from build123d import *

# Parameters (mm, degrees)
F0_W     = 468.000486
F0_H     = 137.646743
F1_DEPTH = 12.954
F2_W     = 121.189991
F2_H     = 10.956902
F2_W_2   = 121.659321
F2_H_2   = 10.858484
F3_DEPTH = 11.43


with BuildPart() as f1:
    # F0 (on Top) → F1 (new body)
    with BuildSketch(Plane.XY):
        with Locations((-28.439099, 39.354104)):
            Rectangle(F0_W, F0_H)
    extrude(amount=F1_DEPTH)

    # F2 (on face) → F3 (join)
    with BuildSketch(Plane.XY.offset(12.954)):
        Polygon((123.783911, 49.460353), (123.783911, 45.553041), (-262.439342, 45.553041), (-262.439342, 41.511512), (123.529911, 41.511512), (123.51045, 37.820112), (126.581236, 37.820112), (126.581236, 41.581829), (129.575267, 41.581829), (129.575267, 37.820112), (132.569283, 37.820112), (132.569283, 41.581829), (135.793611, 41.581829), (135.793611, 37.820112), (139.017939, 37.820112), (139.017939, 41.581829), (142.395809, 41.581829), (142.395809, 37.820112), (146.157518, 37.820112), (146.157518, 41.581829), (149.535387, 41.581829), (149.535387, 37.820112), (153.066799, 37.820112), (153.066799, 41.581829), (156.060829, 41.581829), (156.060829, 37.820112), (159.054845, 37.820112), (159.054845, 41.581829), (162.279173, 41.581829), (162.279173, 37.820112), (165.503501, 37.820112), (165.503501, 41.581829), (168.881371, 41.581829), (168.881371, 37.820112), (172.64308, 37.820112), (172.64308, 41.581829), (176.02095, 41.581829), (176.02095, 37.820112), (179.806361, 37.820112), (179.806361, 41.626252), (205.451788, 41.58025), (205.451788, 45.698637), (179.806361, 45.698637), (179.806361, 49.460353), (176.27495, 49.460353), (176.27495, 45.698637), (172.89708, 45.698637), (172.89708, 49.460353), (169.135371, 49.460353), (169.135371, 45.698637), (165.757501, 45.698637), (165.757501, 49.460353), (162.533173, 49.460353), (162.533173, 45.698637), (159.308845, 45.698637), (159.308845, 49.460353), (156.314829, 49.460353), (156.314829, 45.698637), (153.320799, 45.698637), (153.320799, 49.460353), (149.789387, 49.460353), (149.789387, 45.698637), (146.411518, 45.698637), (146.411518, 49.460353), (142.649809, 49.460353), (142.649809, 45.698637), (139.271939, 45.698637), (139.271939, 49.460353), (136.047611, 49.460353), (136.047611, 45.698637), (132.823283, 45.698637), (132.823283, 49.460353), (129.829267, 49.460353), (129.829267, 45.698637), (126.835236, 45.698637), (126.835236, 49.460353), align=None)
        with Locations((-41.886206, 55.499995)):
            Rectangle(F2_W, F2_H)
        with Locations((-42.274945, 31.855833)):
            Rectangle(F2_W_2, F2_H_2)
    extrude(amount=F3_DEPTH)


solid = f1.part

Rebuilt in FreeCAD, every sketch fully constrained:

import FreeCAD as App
import Part
import Sketcher

V = App.Vector
Q = App.Units.Quantity


def add_polygon(sketch, points):
    """Adds a closed chain of lines whose ends are joined by coincident constraints."""
    first, n = sketch.GeometryCount, len(points)
    for a, b in zip(points, points[1:] + points[:1]):
        sketch.addGeometry(Part.LineSegment(App.Vector(*a, 0), App.Vector(*b, 0)), False)
    for i in range(n):
        sketch.addConstraint(Sketcher.Constraint("Coincident", first + i, 2, first + (i + 1) % n, 1))

doc = App.newDocument("Part")
body = doc.addObject("PartDesign::Body", "Body")

# Sketch on XY plane
sketch1 = body.newObject("Sketcher::SketchObject", "Sketch")
sketch1.AttachmentSupport = (doc.getObject("XY_Plane"), [""])
sketch1.MapMode = "FlatFace"
add_polygon(sketch1, [(-262, 108), (-262, -29), (206, -29), (206, 108)])  # lines 0-3
sketch1.addConstraint(Sketcher.Constraint("Vertical", 0))
sketch1.addConstraint(Sketcher.Constraint("Horizontal", 1))
sketch1.addConstraint(Sketcher.Constraint("Vertical", 2))
sketch1.addConstraint(Sketcher.Constraint("Horizontal", 3))
sketch1.addConstraint(Sketcher.Constraint("DistanceX", 1, 1, 1, 2, 468.000486))
sketch1.addConstraint(Sketcher.Constraint("DistanceY", 0, 2, 0, 1, 137.646743))
sketch1.addConstraint(Sketcher.Constraint("DistanceX", 0, 2, -1, 1, 262.439342))
sketch1.addConstraint(Sketcher.Constraint("DistanceY", 0, 2, -1, 1, 29.469268))
pad1 = body.newObject("PartDesign::Pad", "Pad")
pad1.Profile = sketch1
pad1.Length = Q("0.51 in")

# Sketch on XY plane
sketch2 = body.newObject("Sketcher::SketchObject", "Sketch001")
sketch2.AttachmentSupport = (doc.getObject("XY_Plane"), [""])
sketch2.MapMode = "FlatFace"
sketch2.AttachmentOffset = App.Placement(V(0, 0, 0.51 * 25.4), App.Rotation())
add_polygon(sketch2, [(123.8, 49.5), (123.8, 45.6), (-262.4, 45.6), (-262.4, 41.5), (123.5, 41.5), (123.5, 37.8), (126.6, 37.8), (126.6, 41.6), (129.6, 41.6), (129.6, 37.8), (132.6, 37.8), (132.6, 41.6), (135.8, 41.6), (135.8, 37.8), (139, 37.8), (139, 41.6), (142.4, 41.6), (142.4, 37.8), (146.2, 37.8), (146.2, 41.6), (149.5, 41.6), (149.5, 37.8), (153.1, 37.8), (153.1, 41.6), (156.1, 41.6), (156.1, 37.8), (159.1, 37.8), (159.1, 41.6), (162.3, 41.6), (162.3, 37.8), (165.5, 37.8), (165.5, 41.6), (168.9, 41.6), (168.9, 37.8), (172.6, 37.8), (172.6, 41.6), (176, 41.6), (176, 37.8), (179.8, 37.8), (179.8, 41.6), (205.5, 41.6), (205.5, 45.7), (179.8, 45.7), (179.8, 49.5), (176.3, 49.5), (176.3, 45.7), (172.9, 45.7), (172.9, 49.5), (169.1, 49.5), (169.1, 45.7), (165.8, 45.7), (165.8, 49.5), (162.5, 49.5), (162.5, 45.7), (159.3, 45.7), (159.3, 49.5), (156.3, 49.5), (156.3, 45.7), (153.3, 45.7), (153.3, 49.5), (149.8, 49.5), (149.8, 45.7), (146.4, 45.7), (146.4, 49.5), (142.6, 49.5), (142.6, 45.7), (139.3, 45.7), (139.3, 49.5), (136, 49.5), (136, 45.7), (132.8, 45.7), (132.8, 49.5), (129.8, 49.5), (129.8, 45.7), (126.8, 45.7), (126.8, 49.5)])  # lines 0-75
add_polygon(sketch2, [(-102.5, 61), (-102.5, 50), (18.7, 50), (18.7, 61)])  # lines 76-79
add_polygon(sketch2, [(-103.1, 37.3), (-103.1, 26.4), (18.6, 26.4), (18.6, 37.3)])  # lines 80-83
sketch2.addConstraint(Sketcher.Constraint("Vertical", 0))
sketch2.addConstraint(Sketcher.Constraint("Horizontal", 1))
sketch2.addConstraint(Sketcher.Constraint("Vertical", 2))
sketch2.addConstraint(Sketcher.Constraint("Horizontal", 3))
sketch2.addConstraint(Sketcher.Constraint("Horizontal", 5))
sketch2.addConstraint(Sketcher.Constraint("Vertical", 6))
sketch2.addConstraint(Sketcher.Constraint("Horizontal", 7))
sketch2.addConstraint(Sketcher.Constraint("Vertical", 8))
sketch2.addConstraint(Sketcher.Constraint("Horizontal", 9))
sketch2.addConstraint(Sketcher.Constraint("Vertical", 10))
sketch2.addConstraint(Sketcher.Constraint("Horizontal", 11))
sketch2.addConstraint(Sketcher.Constraint("Vertical", 12))
sketch2.addConstraint(Sketcher.Constraint("Horizontal", 13))
sketch2.addConstraint(Sketcher.Constraint("Vertical", 14))
sketch2.addConstraint(Sketcher.Constraint("Horizontal", 15))
sketch2.addConstraint(Sketcher.Constraint("Vertical", 16))
sketch2.addConstraint(Sketcher.Constraint("Horizontal", 17))
sketch2.addConstraint(Sketcher.Constraint("Vertical", 18))
sketch2.addConstraint(Sketcher.Constraint("Horizontal", 19))
sketch2.addConstraint(Sketcher.Constraint("Vertical", 20))
sketch2.addConstraint(Sketcher.Constraint("Horizontal", 21))
sketch2.addConstraint(Sketcher.Constraint("Vertical", 22))
sketch2.addConstraint(Sketcher.Constraint("Horizontal", 23))
sketch2.addConstraint(Sketcher.Constraint("Vertical", 24))
sketch2.addConstraint(Sketcher.Constraint("Horizontal", 25))
sketch2.addConstraint(Sketcher.Constraint("Vertical", 26))
sketch2.addConstraint(Sketcher.Constraint("Horizontal", 27))
sketch2.addConstraint(Sketcher.Constraint("Vertical", 28))
sketch2.addConstraint(Sketcher.Constraint("Horizontal", 29))
sketch2.addConstraint(Sketcher.Constraint("Vertical", 30))
sketch2.addConstraint(Sketcher.Constraint("Horizontal", 31))
sketch2.addConstraint(Sketcher.Constraint("Vertical", 32))
sketch2.addConstraint(Sketcher.Constraint("Horizontal", 33))
sketch2.addConstraint(Sketcher.Constraint("Vertical", 34))
sketch2.addConstraint(Sketcher.Constraint("Horizontal", 35))
sketch2.addConstraint(Sketcher.Constraint("Vertical", 36))
sketch2.addConstraint(Sketcher.Constraint("Horizontal", 37))
sketch2.addConstraint(Sketcher.Constraint("Vertical", 38))
sketch2.addConstraint(Sketcher.Constraint("Vertical", 40))
sketch2.addConstraint(Sketcher.Constraint("Horizontal", 41))
sketch2.addConstraint(Sketcher.Constraint("Vertical", 42))
sketch2.addConstraint(Sketcher.Constraint("Horizontal", 43))
sketch2.addConstraint(Sketcher.Constraint("Vertical", 44))
sketch2.addConstraint(Sketcher.Constraint("Horizontal", 45))
sketch2.addConstraint(Sketcher.Constraint("Vertical", 46))
sketch2.addConstraint(Sketcher.Constraint("Horizontal", 47))
sketch2.addConstraint(Sketcher.Constraint("Vertical", 48))
sketch2.addConstraint(Sketcher.Constraint("Horizontal", 49))
sketch2.addConstraint(Sketcher.Constraint("Vertical", 50))
sketch2.addConstraint(Sketcher.Constraint("Horizontal", 51))
sketch2.addConstraint(Sketcher.Constraint("Vertical", 52))
sketch2.addConstraint(Sketcher.Constraint("Horizontal", 53))
sketch2.addConstraint(Sketcher.Constraint("Vertical", 54))
sketch2.addConstraint(Sketcher.Constraint("Horizontal", 55))
sketch2.addConstraint(Sketcher.Constraint("Vertical", 56))
sketch2.addConstraint(Sketcher.Constraint("Horizontal", 57))
sketch2.addConstraint(Sketcher.Constraint("Vertical", 58))
sketch2.addConstraint(Sketcher.Constraint("Horizontal", 59))
sketch2.addConstraint(Sketcher.Constraint("Vertical", 60))
sketch2.addConstraint(Sketcher.Constraint("Horizontal", 61))
sketch2.addConstraint(Sketcher.Constraint("Vertical", 62))
sketch2.addConstraint(Sketcher.Constraint("Horizontal", 63))
sketch2.addConstraint(Sketcher.Constraint("Vertical", 64))
sketch2.addConstraint(Sketcher.Constraint("Horizontal", 65))
sketch2.addConstraint(Sketcher.Constraint("Vertical", 66))
sketch2.addConstraint(Sketcher.Constraint("Horizontal", 67))
sketch2.addConstraint(Sketcher.Constraint("Vertical", 68))
sketch2.addConstraint(Sketcher.Constraint("Horizontal", 69))
sketch2.addConstraint(Sketcher.Constraint("Vertical", 70))
sketch2.addConstraint(Sketcher.Constraint("Horizontal", 71))
sketch2.addConstraint(Sketcher.Constraint("Vertical", 72))
sketch2.addConstraint(Sketcher.Constraint("Horizontal", 73))
sketch2.addConstraint(Sketcher.Constraint("Vertical", 74))
sketch2.addConstraint(Sketcher.Constraint("Horizontal", 75))
sketch2.addConstraint(Sketcher.Constraint("Vertical", 76))
sketch2.addConstraint(Sketcher.Constraint("Horizontal", 77))
sketch2.addConstraint(Sketcher.Constraint("Vertical", 78))
sketch2.addConstraint(Sketcher.Constraint("Horizontal", 79))
sketch2.addConstraint(Sketcher.Constraint("Vertical", 80))
sketch2.addConstraint(Sketcher.Constraint("Horizontal", 81))
sketch2.addConstraint(Sketcher.Constraint("Vertical", 82))
sketch2.addConstraint(Sketcher.Constraint("Horizontal", 83))
sketch2.addConstraint(Sketcher.Constraint("Horizontal", 5, 2, 8, 2))
sketch2.addConstraint(Sketcher.Constraint("Horizontal", 7, 2, 10, 2))
sketch2.addConstraint(Sketcher.Constraint("Horizontal", 9, 2, 12, 2))
sketch2.addConstraint(Sketcher.Constraint("Horizontal", 11, 2, 14, 2))
sketch2.addConstraint(Sketcher.Constraint("Horizontal", 13, 2, 16, 2))
sketch2.addConstraint(Sketcher.Constraint("Horizontal", 15, 2, 18, 2))
sketch2.addConstraint(Sketcher.Constraint("Horizontal", 17, 2, 20, 2))
sketch2.addConstraint(Sketcher.Constraint("Horizontal", 19, 2, 22, 2))
sketch2.addConstraint(Sketcher.Constraint("Horizontal", 21, 2, 24, 2))
sketch2.addConstraint(Sketcher.Constraint("Horizontal", 23, 2, 26, 2))
sketch2.addConstraint(Sketcher.Constraint("Horizontal", 25, 2, 28, 2))
sketch2.addConstraint(Sketcher.Constraint("Horizontal", 27, 2, 30, 2))
sketch2.addConstraint(Sketcher.Constraint("Horizontal", 29, 2, 32, 2))
sketch2.addConstraint(Sketcher.Constraint("Horizontal", 31, 2, 34, 2))
sketch2.addConstraint(Sketcher.Constraint("Horizontal", 33, 2, 36, 2))
sketch2.addConstraint(Sketcher.Constraint("Horizontal", 41, 2, 44, 2))
sketch2.addConstraint(Sketcher.Constraint("Horizontal", 43, 2, 46, 2))
sketch2.addConstraint(Sketcher.Constraint("Horizontal", 45, 2, 48, 2))
sketch2.addConstraint(Sketcher.Constraint("Horizontal", 47, 2, 50, 2))
sketch2.addConstraint(Sketcher.Constraint("Horizontal", 49, 2, 52, 2))
sketch2.addConstraint(Sketcher.Constraint("Horizontal", 51, 2, 54, 2))
sketch2.addConstraint(Sketcher.Constraint("Horizontal", 53, 2, 56, 2))
sketch2.addConstraint(Sketcher.Constraint("Horizontal", 55, 2, 58, 2))
sketch2.addConstraint(Sketcher.Constraint("Horizontal", 57, 2, 60, 2))
sketch2.addConstraint(Sketcher.Constraint("Horizontal", 59, 2, 62, 2))
sketch2.addConstraint(Sketcher.Constraint("Horizontal", 61, 2, 64, 2))
sketch2.addConstraint(Sketcher.Constraint("Horizontal", 63, 2, 66, 2))
sketch2.addConstraint(Sketcher.Constraint("Horizontal", 65, 2, 68, 2))
sketch2.addConstraint(Sketcher.Constraint("Horizontal", 67, 2, 70, 2))
sketch2.addConstraint(Sketcher.Constraint("Horizontal", 69, 2, 72, 2))
sketch2.addConstraint(Sketcher.Constraint("Horizontal", 71, 2, 74, 2))
sketch2.addConstraint(Sketcher.Constraint("Vertical", 38, 2, 41, 2))
sketch2.addConstraint(Sketcher.Constraint("Equal", 11, 13))
sketch2.addConstraint(Sketcher.Constraint("Equal", 15, 19))
sketch2.addConstraint(Sketcher.Constraint("Equal", 7, 23))
sketch2.addConstraint(Sketcher.Constraint("Equal", 9, 25))
sketch2.addConstraint(Sketcher.Constraint("Equal", 13, 27))
sketch2.addConstraint(Sketcher.Constraint("Equal", 27, 29))
sketch2.addConstraint(Sketcher.Constraint("Equal", 19, 31))
sketch2.addConstraint(Sketcher.Constraint("Equal", 17, 33))
sketch2.addConstraint(Sketcher.Constraint("Equal", 31, 35))
sketch2.addConstraint(Sketcher.Constraint("Equal", 21, 43))
sketch2.addConstraint(Sketcher.Constraint("Equal", 35, 45))
sketch2.addConstraint(Sketcher.Constraint("Equal", 33, 47))
sketch2.addConstraint(Sketcher.Constraint("Equal", 45, 49))
sketch2.addConstraint(Sketcher.Constraint("Equal", 29, 51))
sketch2.addConstraint(Sketcher.Constraint("Equal", 51, 53))
sketch2.addConstraint(Sketcher.Constraint("Equal", 25, 55))
sketch2.addConstraint(Sketcher.Constraint("Equal", 23, 57))
sketch2.addConstraint(Sketcher.Constraint("Equal", 43, 59))
sketch2.addConstraint(Sketcher.Constraint("Equal", 49, 61))
sketch2.addConstraint(Sketcher.Constraint("Equal", 47, 63))
sketch2.addConstraint(Sketcher.Constraint("Equal", 61, 65))
sketch2.addConstraint(Sketcher.Constraint("Equal", 53, 67))
sketch2.addConstraint(Sketcher.Constraint("Equal", 67, 69))
sketch2.addConstraint(Sketcher.Constraint("Equal", 55, 71))
sketch2.addConstraint(Sketcher.Constraint("Equal", 57, 73))
sketch2.addConstraint(Sketcher.Constraint("Equal", 36, 42))
sketch2.addConstraint(Sketcher.Constraint("DistanceX", 7, 1, 7, 2, 2.994031))
sketch2.addConstraint(Sketcher.Constraint("DistanceX", 13, 1, 13, 2, 3.224328))
sketch2.addConstraint(Sketcher.Constraint("DistanceX", 15, 1, 15, 2, 3.37787))
sketch2.addConstraint(Sketcher.Constraint("DistanceX", 17, 1, 17, 2, 3.761709))
sketch2.addConstraint(Sketcher.Constraint("DistanceX", 37, 1, 37, 2, 3.785411))
sketch2.addConstraint(Sketcher.Constraint("DistanceX", 43, 2, 43, 1, 3.531411))
sketch2.addConstraint(Sketcher.Constraint("DistanceX", 77, 1, 77, 2, 121.189991))
sketch2.addConstraint(Sketcher.Constraint("DistanceX", 81, 1, 81, 2, 121.659321))
sketch2.addConstraint(Sketcher.Constraint("DistanceY", 0, 2, 0, 1, 3.907312))
sketch2.addConstraint(Sketcher.Constraint("DistanceY", 2, 2, 2, 1, 4.041529))
sketch2.addConstraint(Sketcher.Constraint("DistanceY", 38, 1, 38, 2, 3.80614))
sketch2.addConstraint(Sketcher.Constraint("DistanceX", -1, 1, 21, 2, 153.066799))
sketch2.addConstraint(Sketcher.Constraint("DistanceX", -1, 1, 29, 2, 165.503501))
sketch2.addConstraint(Sketcher.Constraint("DistanceX", 76, 2, -1, 1, 102.481201))
sketch2.addConstraint(Sketcher.Constraint("Distance", 4, 3.691451))
sketch2.addConstraint(Sketcher.Constraint("Distance", 39, 25.645468))
sketch2.addConstraint(Sketcher.Constraint("DistanceX", 1, 2, 1, 1, 386.223253))
sketch2.addConstraint(Sketcher.Constraint("DistanceX", 3, 1, 3, 2, 385.969253))
sketch2.addConstraint(Sketcher.Constraint("DistanceX", 5, 1, 5, 2, 3.070786))
sketch2.addConstraint(Sketcher.Constraint("DistanceX", 75, 2, 75, 1, 3.051325))
sketch2.addConstraint(Sketcher.Constraint("DistanceY", 6, 1, 6, 2, 3.761717))
sketch2.addConstraint(Sketcher.Constraint("DistanceY", 40, 1, 40, 2, 4.118387))
sketch2.addConstraint(Sketcher.Constraint("DistanceY", 76, 2, 76, 1, 10.956902))
sketch2.addConstraint(Sketcher.Constraint("DistanceY", 80, 2, 80, 1, 10.858484))
sketch2.addConstraint(Sketcher.Constraint("DistanceY", -1, 1, 0, 2, 45.553041))
sketch2.addConstraint(Sketcher.Constraint("DistanceY", -1, 1, 80, 2, 26.426591))
sketch2.addConstraint(Sketcher.Constraint("DistanceY", -1, 1, 76, 2, 50.021544))
sketch2.addConstraint(Sketcher.Constraint("DistanceX", 80, 2, -1, 1, 103.104606))
pad2 = body.newObject("PartDesign::Pad", "Pad001")
pad2.Profile = sketch2
pad2.Length = Q("0.45 in")

doc.recompute()
